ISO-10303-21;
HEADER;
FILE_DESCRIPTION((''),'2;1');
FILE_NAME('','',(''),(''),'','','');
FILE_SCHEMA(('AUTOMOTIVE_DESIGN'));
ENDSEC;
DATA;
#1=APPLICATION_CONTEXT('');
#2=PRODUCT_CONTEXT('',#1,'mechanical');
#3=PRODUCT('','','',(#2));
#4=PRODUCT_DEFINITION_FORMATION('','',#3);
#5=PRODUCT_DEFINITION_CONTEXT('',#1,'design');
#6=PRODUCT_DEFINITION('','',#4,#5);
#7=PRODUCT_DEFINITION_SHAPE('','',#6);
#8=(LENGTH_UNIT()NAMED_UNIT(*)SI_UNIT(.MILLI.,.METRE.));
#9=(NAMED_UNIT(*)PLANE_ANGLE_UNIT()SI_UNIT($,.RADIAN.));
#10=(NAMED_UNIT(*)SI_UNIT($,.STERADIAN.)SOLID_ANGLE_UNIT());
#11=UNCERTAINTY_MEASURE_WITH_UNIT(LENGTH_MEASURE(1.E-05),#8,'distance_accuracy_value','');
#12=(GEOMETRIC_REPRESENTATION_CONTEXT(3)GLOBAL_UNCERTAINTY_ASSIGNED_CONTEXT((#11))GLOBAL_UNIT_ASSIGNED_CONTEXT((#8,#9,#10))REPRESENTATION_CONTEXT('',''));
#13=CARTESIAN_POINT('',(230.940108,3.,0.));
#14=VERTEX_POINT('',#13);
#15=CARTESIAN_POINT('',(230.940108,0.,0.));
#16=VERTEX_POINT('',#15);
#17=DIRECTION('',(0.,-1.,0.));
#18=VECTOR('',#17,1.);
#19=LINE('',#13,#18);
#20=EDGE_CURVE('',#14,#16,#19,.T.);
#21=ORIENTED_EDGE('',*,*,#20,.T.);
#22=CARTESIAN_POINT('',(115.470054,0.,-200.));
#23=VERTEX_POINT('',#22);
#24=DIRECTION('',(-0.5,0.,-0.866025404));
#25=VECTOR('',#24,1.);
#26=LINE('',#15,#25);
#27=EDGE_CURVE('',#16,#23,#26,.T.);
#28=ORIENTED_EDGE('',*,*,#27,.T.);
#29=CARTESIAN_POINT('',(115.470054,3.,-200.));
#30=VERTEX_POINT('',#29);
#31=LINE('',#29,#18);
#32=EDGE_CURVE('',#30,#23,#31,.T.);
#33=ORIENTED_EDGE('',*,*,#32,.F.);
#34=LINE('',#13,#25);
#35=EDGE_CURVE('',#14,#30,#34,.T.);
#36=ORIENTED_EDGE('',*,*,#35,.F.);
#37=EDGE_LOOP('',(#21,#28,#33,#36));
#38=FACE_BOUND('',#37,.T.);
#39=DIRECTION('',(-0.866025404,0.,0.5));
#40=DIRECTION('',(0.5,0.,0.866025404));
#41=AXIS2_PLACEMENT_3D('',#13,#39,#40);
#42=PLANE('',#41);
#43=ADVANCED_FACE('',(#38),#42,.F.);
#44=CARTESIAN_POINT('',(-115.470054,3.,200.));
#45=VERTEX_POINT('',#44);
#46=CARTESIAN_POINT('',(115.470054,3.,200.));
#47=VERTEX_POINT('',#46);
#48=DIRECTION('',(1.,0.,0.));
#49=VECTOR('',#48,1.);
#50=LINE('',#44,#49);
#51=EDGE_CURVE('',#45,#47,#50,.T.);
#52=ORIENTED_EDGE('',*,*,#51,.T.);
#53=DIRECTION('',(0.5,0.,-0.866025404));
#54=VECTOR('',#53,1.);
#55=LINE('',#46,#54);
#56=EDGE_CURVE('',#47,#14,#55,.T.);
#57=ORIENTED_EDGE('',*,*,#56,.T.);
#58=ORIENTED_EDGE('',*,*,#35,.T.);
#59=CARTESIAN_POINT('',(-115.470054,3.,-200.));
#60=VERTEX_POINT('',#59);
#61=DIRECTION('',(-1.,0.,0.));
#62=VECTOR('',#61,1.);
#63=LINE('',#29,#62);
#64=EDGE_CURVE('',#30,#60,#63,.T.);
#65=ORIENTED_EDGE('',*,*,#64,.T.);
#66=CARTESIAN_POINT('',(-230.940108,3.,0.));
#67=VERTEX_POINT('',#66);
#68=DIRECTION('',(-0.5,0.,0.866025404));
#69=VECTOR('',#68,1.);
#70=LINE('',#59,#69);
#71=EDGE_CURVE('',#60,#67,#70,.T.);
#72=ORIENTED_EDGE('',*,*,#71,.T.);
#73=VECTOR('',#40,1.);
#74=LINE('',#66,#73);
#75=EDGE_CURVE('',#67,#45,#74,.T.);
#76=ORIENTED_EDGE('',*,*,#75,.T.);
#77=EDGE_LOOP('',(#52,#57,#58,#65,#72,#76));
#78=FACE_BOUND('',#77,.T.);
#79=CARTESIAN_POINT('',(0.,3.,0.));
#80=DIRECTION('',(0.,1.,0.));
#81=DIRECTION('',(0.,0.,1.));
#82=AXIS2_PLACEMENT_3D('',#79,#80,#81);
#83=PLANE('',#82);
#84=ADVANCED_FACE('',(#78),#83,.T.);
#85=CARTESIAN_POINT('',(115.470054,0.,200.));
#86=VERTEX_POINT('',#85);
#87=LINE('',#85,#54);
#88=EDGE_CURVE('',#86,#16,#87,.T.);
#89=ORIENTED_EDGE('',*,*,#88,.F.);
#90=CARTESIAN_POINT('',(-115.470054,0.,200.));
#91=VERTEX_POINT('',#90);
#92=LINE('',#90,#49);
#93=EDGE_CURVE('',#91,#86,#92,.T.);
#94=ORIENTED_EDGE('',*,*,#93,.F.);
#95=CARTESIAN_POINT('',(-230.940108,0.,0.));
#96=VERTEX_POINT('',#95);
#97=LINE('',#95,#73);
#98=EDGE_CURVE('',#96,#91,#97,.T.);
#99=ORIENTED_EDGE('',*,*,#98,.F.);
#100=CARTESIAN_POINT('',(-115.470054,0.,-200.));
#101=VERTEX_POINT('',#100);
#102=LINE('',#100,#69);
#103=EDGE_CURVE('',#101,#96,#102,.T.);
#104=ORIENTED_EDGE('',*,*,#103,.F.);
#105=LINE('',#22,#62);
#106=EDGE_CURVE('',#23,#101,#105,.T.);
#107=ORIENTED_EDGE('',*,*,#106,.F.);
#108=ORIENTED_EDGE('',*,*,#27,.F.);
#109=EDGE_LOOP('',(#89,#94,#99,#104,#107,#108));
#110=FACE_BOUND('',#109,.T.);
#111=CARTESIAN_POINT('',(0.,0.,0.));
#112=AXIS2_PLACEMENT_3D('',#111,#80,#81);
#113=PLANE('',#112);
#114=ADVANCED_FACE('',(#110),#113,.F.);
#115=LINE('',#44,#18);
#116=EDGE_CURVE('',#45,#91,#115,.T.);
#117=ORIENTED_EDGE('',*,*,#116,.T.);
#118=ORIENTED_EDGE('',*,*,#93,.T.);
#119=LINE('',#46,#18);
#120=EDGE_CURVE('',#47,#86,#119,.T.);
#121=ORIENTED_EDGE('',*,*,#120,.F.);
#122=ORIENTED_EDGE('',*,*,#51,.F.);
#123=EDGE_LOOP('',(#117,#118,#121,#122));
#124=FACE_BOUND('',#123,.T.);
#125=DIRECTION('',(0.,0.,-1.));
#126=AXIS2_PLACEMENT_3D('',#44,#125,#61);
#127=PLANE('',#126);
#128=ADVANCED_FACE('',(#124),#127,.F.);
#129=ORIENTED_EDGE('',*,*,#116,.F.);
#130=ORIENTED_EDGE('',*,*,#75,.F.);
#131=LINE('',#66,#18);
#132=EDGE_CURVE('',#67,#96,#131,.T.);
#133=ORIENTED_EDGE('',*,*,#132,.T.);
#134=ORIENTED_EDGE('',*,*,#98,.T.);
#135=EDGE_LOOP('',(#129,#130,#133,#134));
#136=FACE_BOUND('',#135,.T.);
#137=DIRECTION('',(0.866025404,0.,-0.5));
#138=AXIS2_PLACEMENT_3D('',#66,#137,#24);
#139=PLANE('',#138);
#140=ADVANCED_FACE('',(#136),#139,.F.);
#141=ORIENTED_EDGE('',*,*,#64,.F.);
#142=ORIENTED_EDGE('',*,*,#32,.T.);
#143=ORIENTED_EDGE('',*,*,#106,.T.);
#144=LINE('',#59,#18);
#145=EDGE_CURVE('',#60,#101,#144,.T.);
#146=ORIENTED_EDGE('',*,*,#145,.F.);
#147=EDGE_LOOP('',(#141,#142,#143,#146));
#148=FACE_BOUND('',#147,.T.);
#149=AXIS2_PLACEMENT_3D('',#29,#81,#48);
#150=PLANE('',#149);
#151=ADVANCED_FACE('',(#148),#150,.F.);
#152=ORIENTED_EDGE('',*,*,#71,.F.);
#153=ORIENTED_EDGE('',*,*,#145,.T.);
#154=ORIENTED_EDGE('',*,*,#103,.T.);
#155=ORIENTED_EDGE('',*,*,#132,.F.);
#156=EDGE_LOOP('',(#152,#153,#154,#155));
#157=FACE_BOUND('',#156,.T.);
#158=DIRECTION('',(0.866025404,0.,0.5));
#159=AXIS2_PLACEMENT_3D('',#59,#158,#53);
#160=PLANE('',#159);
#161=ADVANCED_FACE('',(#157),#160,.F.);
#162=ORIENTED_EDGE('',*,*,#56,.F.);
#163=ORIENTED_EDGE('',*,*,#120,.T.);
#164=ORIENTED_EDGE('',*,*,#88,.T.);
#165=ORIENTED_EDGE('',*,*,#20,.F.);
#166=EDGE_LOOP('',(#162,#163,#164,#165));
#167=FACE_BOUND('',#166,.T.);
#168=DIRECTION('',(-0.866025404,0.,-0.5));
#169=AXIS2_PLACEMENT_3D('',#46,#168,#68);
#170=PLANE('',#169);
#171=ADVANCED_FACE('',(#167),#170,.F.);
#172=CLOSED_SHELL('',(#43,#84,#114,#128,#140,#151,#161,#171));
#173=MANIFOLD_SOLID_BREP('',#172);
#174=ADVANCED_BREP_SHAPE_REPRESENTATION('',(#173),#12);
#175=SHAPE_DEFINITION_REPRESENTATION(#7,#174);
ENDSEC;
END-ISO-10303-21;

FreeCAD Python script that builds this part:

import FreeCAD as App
import Part
import Sketcher
Q = App.Units.Quantity


def add_polygon(sketch, points):
    """Adds a closed chain of lines whose ends are joined by coincident constraints."""
    first, n = sketch.GeometryCount, len(points)
    for a, b in zip(points, points[1:] + points[:1]):
        sketch.addGeometry(Part.LineSegment(App.Vector(*a, 0), App.Vector(*b, 0)), False)
    for i in range(n):
        sketch.addConstraint(Sketcher.Constraint("Coincident", first + i, 2, first + (i + 1) % n, 1))

doc = App.newDocument("Part")
body = doc.addObject("PartDesign::Body", "Body")

sketch1 = body.newObject("Sketcher::SketchObject", "Sketch")
sketch1.AttachmentSupport = (doc.getObject("XZ_Plane"), [""])
sketch1.MapMode = "FlatFace"
add_polygon(sketch1, [(231, 0), (115, -200), (-115, -200), (-231, 0), (-115, 200), (115, 200)])
sketch1.addConstraint(Sketcher.Constraint("Horizontal", 1))
sketch1.addConstraint(Sketcher.Constraint("Horizontal", 4))
sketch1.addConstraint(Sketcher.Constraint("Symmetric", 0, 2, 3, 2, -1, 1))
sketch1.addConstraint(Sketcher.Constraint("Symmetric", 2, 2, 5, 2, -1, 1))
sketch1.addConstraint(Sketcher.Constraint("PointOnObject", 2, 2, -1))
sketch1.addConstraint(Sketcher.Constraint("Parallel", 2, 5))
sketch1.addConstraint(Sketcher.Constraint("Vertical", 1, 2, 3, 2))
sketch1.addConstraint(Sketcher.Constraint("Angle", 0, Q("-120 deg")))
sketch1.addConstraint(Sketcher.Constraint("DistanceY", 0, 2, -1, 1, Q("200 mm")))
sketch1.addConstraint(Sketcher.Constraint("DistanceX", 1, 2, 1, 1, Q("230.940108 mm")))
pad1 = body.newObject("PartDesign::Pad", "Pad")
pad1.Profile = sketch1
pad1.Length = 3
pad1.Reversed = True

doc.recompute()
